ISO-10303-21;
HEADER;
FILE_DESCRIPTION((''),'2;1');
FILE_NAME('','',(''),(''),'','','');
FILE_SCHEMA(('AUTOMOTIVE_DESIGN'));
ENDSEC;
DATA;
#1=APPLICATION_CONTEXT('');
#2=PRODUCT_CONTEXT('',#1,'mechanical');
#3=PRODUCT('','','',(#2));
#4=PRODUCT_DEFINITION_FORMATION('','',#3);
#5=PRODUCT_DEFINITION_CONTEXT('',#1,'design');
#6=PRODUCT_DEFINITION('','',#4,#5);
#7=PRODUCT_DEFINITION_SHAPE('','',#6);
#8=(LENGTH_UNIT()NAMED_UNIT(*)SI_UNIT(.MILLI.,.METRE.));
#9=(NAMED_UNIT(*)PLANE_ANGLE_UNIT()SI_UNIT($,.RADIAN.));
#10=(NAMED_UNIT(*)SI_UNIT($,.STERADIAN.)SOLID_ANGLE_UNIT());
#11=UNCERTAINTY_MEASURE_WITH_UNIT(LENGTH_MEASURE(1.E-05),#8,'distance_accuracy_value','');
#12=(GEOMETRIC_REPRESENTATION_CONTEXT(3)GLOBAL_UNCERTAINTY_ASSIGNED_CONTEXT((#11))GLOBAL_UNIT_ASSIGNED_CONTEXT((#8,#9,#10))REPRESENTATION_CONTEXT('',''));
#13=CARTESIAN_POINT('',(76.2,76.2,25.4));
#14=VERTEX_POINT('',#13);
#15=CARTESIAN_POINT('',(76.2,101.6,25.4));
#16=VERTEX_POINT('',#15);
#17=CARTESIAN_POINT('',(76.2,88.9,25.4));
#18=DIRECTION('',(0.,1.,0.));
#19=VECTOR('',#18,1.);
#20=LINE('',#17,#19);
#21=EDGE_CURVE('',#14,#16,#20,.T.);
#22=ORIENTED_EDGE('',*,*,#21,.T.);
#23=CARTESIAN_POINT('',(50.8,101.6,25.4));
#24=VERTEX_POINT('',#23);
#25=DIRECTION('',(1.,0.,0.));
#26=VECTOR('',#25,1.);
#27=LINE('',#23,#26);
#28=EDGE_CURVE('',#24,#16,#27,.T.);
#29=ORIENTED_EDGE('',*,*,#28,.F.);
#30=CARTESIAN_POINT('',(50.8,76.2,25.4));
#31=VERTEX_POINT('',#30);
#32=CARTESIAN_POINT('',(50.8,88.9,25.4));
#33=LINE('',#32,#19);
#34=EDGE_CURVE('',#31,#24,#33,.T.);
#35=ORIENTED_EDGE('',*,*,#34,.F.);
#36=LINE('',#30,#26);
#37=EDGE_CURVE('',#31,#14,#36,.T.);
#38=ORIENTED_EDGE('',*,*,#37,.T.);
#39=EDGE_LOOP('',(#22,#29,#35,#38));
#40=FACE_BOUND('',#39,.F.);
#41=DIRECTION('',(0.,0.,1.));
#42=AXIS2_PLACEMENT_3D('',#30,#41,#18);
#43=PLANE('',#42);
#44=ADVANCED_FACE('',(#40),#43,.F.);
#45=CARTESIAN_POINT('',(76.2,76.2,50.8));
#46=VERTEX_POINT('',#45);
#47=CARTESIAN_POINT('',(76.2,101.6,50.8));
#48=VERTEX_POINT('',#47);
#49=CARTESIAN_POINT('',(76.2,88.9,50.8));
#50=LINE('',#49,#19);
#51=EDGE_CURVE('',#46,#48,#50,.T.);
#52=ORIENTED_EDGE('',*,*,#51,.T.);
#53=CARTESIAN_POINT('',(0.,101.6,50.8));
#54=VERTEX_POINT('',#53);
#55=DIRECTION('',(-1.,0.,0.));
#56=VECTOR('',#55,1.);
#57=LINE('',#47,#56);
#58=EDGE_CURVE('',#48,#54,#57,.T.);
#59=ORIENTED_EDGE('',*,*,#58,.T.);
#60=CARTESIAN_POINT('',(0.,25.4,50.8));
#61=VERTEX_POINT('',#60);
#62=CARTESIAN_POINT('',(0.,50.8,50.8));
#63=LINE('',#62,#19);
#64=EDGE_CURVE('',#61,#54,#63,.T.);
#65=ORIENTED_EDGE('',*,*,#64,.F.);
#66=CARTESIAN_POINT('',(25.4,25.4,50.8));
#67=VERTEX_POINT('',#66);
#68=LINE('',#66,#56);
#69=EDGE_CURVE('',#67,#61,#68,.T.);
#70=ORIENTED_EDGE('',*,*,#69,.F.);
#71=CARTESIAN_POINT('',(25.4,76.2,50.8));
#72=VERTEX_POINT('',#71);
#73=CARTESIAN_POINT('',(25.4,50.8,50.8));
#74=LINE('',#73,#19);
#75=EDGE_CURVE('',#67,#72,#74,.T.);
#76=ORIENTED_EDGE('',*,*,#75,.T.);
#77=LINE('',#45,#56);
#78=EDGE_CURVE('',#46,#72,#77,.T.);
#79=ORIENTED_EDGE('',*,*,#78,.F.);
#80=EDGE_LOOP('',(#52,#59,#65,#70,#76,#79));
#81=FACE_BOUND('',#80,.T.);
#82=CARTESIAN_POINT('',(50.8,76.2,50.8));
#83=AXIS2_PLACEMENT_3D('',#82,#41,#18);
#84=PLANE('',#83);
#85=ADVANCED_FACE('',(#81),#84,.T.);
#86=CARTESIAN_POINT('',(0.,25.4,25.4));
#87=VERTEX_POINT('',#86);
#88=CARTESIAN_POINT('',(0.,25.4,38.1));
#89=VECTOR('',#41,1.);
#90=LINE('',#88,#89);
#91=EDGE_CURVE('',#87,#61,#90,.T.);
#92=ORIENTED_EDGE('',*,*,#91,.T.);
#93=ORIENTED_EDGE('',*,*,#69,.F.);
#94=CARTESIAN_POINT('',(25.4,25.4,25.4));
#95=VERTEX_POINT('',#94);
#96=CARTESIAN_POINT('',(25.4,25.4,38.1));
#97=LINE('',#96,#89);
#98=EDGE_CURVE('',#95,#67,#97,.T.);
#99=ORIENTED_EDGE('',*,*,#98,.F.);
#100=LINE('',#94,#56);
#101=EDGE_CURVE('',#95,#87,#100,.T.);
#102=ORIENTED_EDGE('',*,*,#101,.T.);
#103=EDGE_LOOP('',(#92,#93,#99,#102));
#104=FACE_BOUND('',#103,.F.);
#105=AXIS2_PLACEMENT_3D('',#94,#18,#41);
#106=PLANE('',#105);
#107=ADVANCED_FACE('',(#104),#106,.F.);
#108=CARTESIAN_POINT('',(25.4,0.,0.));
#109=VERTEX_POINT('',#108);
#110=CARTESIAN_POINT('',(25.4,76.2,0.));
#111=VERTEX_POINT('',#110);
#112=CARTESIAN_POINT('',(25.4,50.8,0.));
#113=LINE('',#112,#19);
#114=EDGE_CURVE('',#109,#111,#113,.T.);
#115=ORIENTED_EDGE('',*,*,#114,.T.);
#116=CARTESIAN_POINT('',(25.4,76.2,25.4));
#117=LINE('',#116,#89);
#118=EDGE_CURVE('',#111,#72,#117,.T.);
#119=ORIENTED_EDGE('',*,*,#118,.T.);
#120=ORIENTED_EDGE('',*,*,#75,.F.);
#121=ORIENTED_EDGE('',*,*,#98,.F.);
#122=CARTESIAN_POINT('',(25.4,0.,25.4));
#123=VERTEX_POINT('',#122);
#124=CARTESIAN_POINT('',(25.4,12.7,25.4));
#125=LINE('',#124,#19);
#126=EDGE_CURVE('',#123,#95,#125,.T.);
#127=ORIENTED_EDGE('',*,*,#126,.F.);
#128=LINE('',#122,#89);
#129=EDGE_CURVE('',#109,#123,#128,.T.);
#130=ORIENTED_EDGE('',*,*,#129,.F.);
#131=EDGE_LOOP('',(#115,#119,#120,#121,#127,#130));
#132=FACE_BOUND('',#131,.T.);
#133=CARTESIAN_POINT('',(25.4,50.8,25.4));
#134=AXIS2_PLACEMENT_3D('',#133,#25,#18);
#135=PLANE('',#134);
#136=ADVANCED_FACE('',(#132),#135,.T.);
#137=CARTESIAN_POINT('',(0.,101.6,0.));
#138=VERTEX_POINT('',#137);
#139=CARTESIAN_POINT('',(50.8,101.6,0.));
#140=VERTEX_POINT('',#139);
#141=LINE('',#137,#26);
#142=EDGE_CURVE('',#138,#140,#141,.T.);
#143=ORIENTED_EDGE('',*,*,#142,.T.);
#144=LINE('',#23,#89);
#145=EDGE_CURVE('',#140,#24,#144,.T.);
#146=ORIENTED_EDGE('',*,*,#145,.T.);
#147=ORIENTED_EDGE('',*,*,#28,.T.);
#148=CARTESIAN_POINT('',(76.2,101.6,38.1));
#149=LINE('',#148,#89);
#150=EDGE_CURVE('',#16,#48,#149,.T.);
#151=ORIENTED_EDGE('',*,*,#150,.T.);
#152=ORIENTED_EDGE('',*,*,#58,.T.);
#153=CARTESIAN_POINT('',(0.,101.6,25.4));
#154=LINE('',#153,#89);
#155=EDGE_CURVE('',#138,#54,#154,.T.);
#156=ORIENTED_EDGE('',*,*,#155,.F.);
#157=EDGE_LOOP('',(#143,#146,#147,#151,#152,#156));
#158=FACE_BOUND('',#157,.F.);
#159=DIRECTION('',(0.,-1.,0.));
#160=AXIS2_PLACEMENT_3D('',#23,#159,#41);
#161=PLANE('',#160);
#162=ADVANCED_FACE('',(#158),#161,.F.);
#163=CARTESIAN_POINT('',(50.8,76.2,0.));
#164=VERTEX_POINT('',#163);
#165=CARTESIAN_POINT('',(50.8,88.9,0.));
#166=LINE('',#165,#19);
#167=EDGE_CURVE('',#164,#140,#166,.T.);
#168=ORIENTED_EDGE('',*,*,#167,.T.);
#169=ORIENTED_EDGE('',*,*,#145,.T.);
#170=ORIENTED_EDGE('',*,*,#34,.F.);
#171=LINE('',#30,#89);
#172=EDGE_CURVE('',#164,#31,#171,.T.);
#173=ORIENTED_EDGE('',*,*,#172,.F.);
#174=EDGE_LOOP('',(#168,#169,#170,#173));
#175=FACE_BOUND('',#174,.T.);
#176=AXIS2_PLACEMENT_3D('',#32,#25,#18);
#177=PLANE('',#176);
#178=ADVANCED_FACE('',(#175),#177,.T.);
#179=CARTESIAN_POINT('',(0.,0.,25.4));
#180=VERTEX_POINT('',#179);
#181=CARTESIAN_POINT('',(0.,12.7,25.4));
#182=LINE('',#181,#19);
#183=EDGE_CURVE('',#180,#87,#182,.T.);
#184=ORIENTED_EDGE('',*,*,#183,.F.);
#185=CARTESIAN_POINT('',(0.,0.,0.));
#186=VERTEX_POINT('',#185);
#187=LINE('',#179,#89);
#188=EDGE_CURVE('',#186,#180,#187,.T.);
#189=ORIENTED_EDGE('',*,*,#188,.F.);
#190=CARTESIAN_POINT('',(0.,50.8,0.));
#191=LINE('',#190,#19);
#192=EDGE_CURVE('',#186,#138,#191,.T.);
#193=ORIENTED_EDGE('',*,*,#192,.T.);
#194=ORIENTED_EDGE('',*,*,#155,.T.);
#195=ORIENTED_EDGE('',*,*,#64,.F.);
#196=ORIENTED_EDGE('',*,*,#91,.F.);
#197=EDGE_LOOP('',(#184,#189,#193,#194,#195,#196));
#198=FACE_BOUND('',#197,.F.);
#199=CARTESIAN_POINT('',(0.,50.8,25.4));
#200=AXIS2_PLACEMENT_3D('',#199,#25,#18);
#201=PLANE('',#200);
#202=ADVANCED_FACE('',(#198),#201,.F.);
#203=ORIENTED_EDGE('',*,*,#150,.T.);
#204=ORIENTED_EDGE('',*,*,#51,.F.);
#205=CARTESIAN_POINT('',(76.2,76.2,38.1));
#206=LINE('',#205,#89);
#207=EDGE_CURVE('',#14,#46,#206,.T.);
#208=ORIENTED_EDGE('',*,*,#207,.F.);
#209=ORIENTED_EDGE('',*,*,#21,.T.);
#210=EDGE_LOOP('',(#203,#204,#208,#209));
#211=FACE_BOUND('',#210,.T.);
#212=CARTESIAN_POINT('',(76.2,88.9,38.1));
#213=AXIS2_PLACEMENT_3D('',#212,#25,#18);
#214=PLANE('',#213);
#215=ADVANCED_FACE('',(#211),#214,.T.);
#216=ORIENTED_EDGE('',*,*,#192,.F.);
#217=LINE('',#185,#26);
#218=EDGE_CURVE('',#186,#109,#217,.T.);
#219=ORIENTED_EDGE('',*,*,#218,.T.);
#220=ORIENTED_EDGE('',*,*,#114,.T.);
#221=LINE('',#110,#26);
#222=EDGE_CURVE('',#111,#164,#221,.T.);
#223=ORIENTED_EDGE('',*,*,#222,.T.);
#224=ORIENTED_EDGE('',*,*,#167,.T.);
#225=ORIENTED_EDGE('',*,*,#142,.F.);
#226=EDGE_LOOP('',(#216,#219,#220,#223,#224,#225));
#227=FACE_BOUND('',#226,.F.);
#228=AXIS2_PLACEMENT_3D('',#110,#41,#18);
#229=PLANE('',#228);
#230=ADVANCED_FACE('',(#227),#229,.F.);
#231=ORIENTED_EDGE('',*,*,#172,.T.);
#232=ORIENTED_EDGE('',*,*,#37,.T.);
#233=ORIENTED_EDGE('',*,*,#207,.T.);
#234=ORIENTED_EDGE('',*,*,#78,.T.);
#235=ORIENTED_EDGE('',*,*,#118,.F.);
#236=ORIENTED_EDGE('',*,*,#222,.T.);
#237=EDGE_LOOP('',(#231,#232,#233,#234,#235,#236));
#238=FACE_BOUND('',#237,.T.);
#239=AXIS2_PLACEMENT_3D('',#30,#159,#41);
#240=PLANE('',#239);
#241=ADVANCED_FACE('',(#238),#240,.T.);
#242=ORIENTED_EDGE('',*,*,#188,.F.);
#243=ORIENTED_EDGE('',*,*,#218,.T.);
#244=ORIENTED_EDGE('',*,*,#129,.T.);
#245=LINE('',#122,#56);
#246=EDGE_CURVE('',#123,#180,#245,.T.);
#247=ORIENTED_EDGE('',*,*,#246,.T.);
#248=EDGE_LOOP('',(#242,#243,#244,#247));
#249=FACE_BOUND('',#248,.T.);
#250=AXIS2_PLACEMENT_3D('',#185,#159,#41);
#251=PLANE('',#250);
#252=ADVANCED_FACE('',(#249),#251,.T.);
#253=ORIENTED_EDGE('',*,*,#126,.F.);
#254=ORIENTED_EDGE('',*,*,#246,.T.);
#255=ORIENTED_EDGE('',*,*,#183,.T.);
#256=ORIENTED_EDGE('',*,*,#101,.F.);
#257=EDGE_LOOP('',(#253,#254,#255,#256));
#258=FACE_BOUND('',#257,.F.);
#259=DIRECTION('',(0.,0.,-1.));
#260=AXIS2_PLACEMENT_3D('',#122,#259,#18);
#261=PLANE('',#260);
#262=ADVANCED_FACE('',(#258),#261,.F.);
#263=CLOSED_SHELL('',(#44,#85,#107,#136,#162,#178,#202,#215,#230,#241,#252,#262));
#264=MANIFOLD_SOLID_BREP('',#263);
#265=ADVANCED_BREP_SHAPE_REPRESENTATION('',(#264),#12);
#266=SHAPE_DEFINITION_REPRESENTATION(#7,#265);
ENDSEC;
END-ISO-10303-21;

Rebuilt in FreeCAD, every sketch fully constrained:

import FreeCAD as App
import Part
import Sketcher
Q = App.Units.Quantity

doc = App.newDocument("Part")
body = doc.addObject("PartDesign::Body", "Body")

# Sketch on YZ plane
sketch1 = body.newObject("Sketcher::SketchObject", "Sketch")
sketch1.AttachmentSupport = (doc.getObject("YZ_Plane"), [""])
sketch1.MapMode = "FlatFace"
sketch1.addGeometry([
    Part.LineSegment(App.Vector(0, 51, 0), App.Vector(0, 0, 0)),
    Part.LineSegment(App.Vector(0, 0, 0), App.Vector(102, 0, 0)),
    Part.LineSegment(App.Vector(102, 0, 0), App.Vector(102, 51, 0)),
    Part.LineSegment(App.Vector(102, 51, 0), App.Vector(0, 51, 0)),
], False)
sketch1.addConstraint([
    Sketcher.Constraint("Coincident", 0, 2, 1, 1),
    Sketcher.Constraint("Coincident", 1, 2, 2, 1),
    Sketcher.Constraint("Coincident", 2, 2, 3, 1),
    Sketcher.Constraint("Coincident", 3, 2, 0, 1),
    Sketcher.Constraint("Vertical", 0),
    Sketcher.Constraint("Horizontal", 1),
    Sketcher.Constraint("Vertical", 2),
    Sketcher.Constraint("Horizontal", 3),
    Sketcher.Constraint("Coincident", 0, 2, -1, 1),
    Sketcher.Constraint("DistanceX", 1, 1, 1, 2, Q("4 in")),
    Sketcher.Constraint("DistanceY", 0, 2, 0, 1, Q("2 in")),
])
pad1 = body.newObject("PartDesign::Pad", "Pad")
pad1.Profile = sketch1
pad1.Length = Q("1 in")

# Sketch on YZ plane
sketch2 = body.newObject("Sketcher::SketchObject", "Sketch001")
sketch2.AttachmentSupport = (doc.getObject("YZ_Plane"), [""])
sketch2.MapMode = "FlatFace"
sketch2.AttachmentOffset = App.Placement(App.Vector(0, 0, 1 * 25.4), App.Rotation())
sketch2.addGeometry([
    Part.LineSegment(App.Vector(0, 51, 0), App.Vector(0, 25, 0)),
    Part.LineSegment(App.Vector(0, 25, 0), App.Vector(25, 25, 0)),
    Part.LineSegment(App.Vector(25, 25, 0), App.Vector(25, 51, 0)),
    Part.LineSegment(App.Vector(25, 51, 0), App.Vector(0, 51, 0)),
], False)
sketch2.addConstraint([
    Sketcher.Constraint("Coincident", 0, 2, 1, 1),
    Sketcher.Constraint("Coincident", 1, 2, 2, 1),
    Sketcher.Constraint("Coincident", 2, 2, 3, 1),
    Sketcher.Constraint("Coincident", 3, 2, 0, 1),
    Sketcher.Constraint("Vertical", 0),
    Sketcher.Constraint("Horizontal", 1),
    Sketcher.Constraint("Vertical", 2),
    Sketcher.Constraint("Horizontal", 3),
    Sketcher.Constraint("PointOnObject", 0, 2, -2),
    Sketcher.Constraint("Equal", 3, 0),
    Sketcher.Constraint("DistanceX", 1, 1, 1, 2, Q("1 in")),
    Sketcher.Constraint("DistanceY", -1, 1, 0, 2, Q("1 in")),
])
pocket1 = body.newObject("PartDesign::Pocket", "Pocket")
pocket1.Profile = sketch2
pocket1.Length = Q("1 in")

# Sketch on YZ plane
sketch3 = body.newObject("Sketcher::SketchObject", "Sketch002")
sketch3.AttachmentSupport = (doc.getObject("YZ_Plane"), [""])
sketch3.MapMode = "FlatFace"
sketch3.AttachmentOffset = App.Placement(App.Vector(0, 0, 1 * 25.4), App.Rotation())
sketch3.addGeometry([
    Part.LineSegment(App.Vector(76, 51, 0), App.Vector(76, 0, 0)),
    Part.LineSegment(App.Vector(76, 0, 0), App.Vector(102, 0, 0)),
    Part.LineSegment(App.Vector(102, 0, 0), App.Vector(102, 51, 0)),
    Part.LineSegment(App.Vector(102, 51, 0), App.Vector(76, 51, 0)),
], False)
sketch3.addConstraint([
    Sketcher.Constraint("Coincident", 0, 2, 1, 1),
    Sketcher.Constraint("Coincident", 1, 2, 2, 1),
    Sketcher.Constraint("Coincident", 2, 2, 3, 1),
    Sketcher.Constraint("Coincident", 3, 2, 0, 1),
    Sketcher.Constraint("Vertical", 0),
    Sketcher.Constraint("Horizontal", 1),
    Sketcher.Constraint("Vertical", 2),
    Sketcher.Constraint("Horizontal", 3),
    Sketcher.Constraint("PointOnObject", 0, 2, -1),
    Sketcher.Constraint("DistanceX", 1, 1, 1, 2, Q("1 in")),
    Sketcher.Constraint("DistanceY", 0, 2, 0, 1, Q("2 in")),
    Sketcher.Constraint("DistanceX", -1, 1, 0, 2, Q("3 in")),
])
pad2 = body.newObject("PartDesign::Pad", "Pad001")
pad2.Profile = sketch3
pad2.Length = Q("1 in")

# Sketch on YZ plane
sketch4 = body.newObject("Sketcher::SketchObject", "Sketch003")
sketch4.AttachmentSupport = (doc.getObject("YZ_Plane"), [""])
sketch4.MapMode = "FlatFace"
sketch4.AttachmentOffset = App.Placement(App.Vector(0, 0, 2 * 25.4), App.Rotation())
sketch4.addGeometry([
    Part.LineSegment(App.Vector(76, 51, 0), App.Vector(76, 25, 0)),
    Part.LineSegment(App.Vector(76, 25, 0), App.Vector(102, 25, 0)),
    Part.LineSegment(App.Vector(102, 25, 0), App.Vector(102, 51, 0)),
    Part.LineSegment(App.Vector(102, 51, 0), App.Vector(76, 51, 0)),
], False)
sketch4.addConstraint([
    Sketcher.Constraint("Coincident", 0, 2, 1, 1),
    Sketcher.Constraint("Coincident", 1, 2, 2, 1),
    Sketcher.Constraint("Coincident", 2, 2, 3, 1),
    Sketcher.Constraint("Coincident", 3, 2, 0, 1),
    Sketcher.Constraint("Vertical", 0),
    Sketcher.Constraint("Horizontal", 1),
    Sketcher.Constraint("Vertical", 2),
    Sketcher.Constraint("Horizontal", 3),
    Sketcher.Constraint("Equal", 3, 0),
    Sketcher.Constraint("DistanceX", 1, 1, 1, 2, Q("1 in")),
    Sketcher.Constraint("DistanceX", -1, 1, 0, 2, Q("3 in")),
    Sketcher.Constraint("DistanceY", -1, 1, 0, 2, Q("1 in")),
])
pad3 = body.newObject("PartDesign::Pad", "Pad002")
pad3.Profile = sketch4
pad3.Length = Q("1 in")

doc.recompute()
